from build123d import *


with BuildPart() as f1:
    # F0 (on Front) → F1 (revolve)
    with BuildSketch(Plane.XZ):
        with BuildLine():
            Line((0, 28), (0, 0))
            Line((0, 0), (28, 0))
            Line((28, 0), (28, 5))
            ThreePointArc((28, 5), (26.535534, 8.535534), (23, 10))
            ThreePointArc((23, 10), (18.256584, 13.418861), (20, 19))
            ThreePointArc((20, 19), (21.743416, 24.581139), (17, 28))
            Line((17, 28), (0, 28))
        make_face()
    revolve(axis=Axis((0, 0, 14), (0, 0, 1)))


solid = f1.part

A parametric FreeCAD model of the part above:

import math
import FreeCAD as App
import Part
import Sketcher

V = App.Vector

doc = App.newDocument("Part")
body = doc.addObject("PartDesign::Body", "Body")

# Sketch on XZ plane
sketch1 = doc.addObject("Sketcher::SketchObject", "Sketch")
body.addObject(sketch1)
sketch1.AttachmentSupport = (doc.XZ_Plane, [""])
sketch1.MapMode = "FlatFace"
sketch1.addGeometry([
    Part.LineSegment(V(0, 28, 0), V(0, 0, 0)),  # 0
    Part.LineSegment(V(0, 0, 0), V(28, 0, 0)),  # 1
    Part.LineSegment(V(28, 0, 0), V(28, 5, 0)),  # 2
    Part.ArcOfCircle(Part.Circle(V(23, 5, 0), V(0, 0, 1), 5), math.radians(0), math.radians(90)),  # 3
    Part.ArcOfCircle(Part.Circle(V(23, 15, 0), V(0, 0, 1), 5), math.radians(127), math.radians(270)),  # 4
    Part.ArcOfCircle(Part.Circle(V(17, 23, 0), V(0, 0, 1), 5), math.radians(-53), math.radians(90)),  # 5
    Part.LineSegment(V(17, 28, 0), V(0, 28, 0)),  # 6
], False)
sketch1.addConstraint([
    Sketcher.Constraint("Coincident", 0, 2, 1, 1),
    Sketcher.Constraint("Coincident", 1, 2, 2, 1),
    Sketcher.Constraint("Tangent", 2, 2, 3, 1),
    Sketcher.Constraint("Tangent", 3, 2, 4, 2),
    Sketcher.Constraint("Tangent", 4, 1, 5, 1),
    Sketcher.Constraint("Tangent", 5, 2, 6, 1),
    Sketcher.Constraint("Coincident", 6, 2, 0, 1),
    Sketcher.Constraint("Vertical", 0),
    Sketcher.Constraint("Horizontal", 1),
    Sketcher.Constraint("Vertical", 2),
    Sketcher.Constraint("Horizontal", 6),
    Sketcher.Constraint("Coincident", 0, 2, -1, 1),
    Sketcher.Constraint("Equal", 3, 4),
    Sketcher.Constraint("Equal", 4, 5),
    Sketcher.Constraint("Vertical", 3, 3, 4, 3),
    Sketcher.Constraint("Equal", 1, 0),
    Sketcher.Constraint("Radius", 3, 5.0),
    Sketcher.Constraint("DistanceX", 1, 1, 1, 2, 28.0),
    Sketcher.Constraint("DistanceX", 6, 2, 6, 1, 17.0),
])
revolution = doc.addObject("PartDesign::Revolution", "Revolution")
body.addObject(revolution)
revolution.Profile = sketch1
revolution.ReferenceAxis = (sketch1, ["V_Axis"])
revolution.Angle = 360

doc.recompute()
